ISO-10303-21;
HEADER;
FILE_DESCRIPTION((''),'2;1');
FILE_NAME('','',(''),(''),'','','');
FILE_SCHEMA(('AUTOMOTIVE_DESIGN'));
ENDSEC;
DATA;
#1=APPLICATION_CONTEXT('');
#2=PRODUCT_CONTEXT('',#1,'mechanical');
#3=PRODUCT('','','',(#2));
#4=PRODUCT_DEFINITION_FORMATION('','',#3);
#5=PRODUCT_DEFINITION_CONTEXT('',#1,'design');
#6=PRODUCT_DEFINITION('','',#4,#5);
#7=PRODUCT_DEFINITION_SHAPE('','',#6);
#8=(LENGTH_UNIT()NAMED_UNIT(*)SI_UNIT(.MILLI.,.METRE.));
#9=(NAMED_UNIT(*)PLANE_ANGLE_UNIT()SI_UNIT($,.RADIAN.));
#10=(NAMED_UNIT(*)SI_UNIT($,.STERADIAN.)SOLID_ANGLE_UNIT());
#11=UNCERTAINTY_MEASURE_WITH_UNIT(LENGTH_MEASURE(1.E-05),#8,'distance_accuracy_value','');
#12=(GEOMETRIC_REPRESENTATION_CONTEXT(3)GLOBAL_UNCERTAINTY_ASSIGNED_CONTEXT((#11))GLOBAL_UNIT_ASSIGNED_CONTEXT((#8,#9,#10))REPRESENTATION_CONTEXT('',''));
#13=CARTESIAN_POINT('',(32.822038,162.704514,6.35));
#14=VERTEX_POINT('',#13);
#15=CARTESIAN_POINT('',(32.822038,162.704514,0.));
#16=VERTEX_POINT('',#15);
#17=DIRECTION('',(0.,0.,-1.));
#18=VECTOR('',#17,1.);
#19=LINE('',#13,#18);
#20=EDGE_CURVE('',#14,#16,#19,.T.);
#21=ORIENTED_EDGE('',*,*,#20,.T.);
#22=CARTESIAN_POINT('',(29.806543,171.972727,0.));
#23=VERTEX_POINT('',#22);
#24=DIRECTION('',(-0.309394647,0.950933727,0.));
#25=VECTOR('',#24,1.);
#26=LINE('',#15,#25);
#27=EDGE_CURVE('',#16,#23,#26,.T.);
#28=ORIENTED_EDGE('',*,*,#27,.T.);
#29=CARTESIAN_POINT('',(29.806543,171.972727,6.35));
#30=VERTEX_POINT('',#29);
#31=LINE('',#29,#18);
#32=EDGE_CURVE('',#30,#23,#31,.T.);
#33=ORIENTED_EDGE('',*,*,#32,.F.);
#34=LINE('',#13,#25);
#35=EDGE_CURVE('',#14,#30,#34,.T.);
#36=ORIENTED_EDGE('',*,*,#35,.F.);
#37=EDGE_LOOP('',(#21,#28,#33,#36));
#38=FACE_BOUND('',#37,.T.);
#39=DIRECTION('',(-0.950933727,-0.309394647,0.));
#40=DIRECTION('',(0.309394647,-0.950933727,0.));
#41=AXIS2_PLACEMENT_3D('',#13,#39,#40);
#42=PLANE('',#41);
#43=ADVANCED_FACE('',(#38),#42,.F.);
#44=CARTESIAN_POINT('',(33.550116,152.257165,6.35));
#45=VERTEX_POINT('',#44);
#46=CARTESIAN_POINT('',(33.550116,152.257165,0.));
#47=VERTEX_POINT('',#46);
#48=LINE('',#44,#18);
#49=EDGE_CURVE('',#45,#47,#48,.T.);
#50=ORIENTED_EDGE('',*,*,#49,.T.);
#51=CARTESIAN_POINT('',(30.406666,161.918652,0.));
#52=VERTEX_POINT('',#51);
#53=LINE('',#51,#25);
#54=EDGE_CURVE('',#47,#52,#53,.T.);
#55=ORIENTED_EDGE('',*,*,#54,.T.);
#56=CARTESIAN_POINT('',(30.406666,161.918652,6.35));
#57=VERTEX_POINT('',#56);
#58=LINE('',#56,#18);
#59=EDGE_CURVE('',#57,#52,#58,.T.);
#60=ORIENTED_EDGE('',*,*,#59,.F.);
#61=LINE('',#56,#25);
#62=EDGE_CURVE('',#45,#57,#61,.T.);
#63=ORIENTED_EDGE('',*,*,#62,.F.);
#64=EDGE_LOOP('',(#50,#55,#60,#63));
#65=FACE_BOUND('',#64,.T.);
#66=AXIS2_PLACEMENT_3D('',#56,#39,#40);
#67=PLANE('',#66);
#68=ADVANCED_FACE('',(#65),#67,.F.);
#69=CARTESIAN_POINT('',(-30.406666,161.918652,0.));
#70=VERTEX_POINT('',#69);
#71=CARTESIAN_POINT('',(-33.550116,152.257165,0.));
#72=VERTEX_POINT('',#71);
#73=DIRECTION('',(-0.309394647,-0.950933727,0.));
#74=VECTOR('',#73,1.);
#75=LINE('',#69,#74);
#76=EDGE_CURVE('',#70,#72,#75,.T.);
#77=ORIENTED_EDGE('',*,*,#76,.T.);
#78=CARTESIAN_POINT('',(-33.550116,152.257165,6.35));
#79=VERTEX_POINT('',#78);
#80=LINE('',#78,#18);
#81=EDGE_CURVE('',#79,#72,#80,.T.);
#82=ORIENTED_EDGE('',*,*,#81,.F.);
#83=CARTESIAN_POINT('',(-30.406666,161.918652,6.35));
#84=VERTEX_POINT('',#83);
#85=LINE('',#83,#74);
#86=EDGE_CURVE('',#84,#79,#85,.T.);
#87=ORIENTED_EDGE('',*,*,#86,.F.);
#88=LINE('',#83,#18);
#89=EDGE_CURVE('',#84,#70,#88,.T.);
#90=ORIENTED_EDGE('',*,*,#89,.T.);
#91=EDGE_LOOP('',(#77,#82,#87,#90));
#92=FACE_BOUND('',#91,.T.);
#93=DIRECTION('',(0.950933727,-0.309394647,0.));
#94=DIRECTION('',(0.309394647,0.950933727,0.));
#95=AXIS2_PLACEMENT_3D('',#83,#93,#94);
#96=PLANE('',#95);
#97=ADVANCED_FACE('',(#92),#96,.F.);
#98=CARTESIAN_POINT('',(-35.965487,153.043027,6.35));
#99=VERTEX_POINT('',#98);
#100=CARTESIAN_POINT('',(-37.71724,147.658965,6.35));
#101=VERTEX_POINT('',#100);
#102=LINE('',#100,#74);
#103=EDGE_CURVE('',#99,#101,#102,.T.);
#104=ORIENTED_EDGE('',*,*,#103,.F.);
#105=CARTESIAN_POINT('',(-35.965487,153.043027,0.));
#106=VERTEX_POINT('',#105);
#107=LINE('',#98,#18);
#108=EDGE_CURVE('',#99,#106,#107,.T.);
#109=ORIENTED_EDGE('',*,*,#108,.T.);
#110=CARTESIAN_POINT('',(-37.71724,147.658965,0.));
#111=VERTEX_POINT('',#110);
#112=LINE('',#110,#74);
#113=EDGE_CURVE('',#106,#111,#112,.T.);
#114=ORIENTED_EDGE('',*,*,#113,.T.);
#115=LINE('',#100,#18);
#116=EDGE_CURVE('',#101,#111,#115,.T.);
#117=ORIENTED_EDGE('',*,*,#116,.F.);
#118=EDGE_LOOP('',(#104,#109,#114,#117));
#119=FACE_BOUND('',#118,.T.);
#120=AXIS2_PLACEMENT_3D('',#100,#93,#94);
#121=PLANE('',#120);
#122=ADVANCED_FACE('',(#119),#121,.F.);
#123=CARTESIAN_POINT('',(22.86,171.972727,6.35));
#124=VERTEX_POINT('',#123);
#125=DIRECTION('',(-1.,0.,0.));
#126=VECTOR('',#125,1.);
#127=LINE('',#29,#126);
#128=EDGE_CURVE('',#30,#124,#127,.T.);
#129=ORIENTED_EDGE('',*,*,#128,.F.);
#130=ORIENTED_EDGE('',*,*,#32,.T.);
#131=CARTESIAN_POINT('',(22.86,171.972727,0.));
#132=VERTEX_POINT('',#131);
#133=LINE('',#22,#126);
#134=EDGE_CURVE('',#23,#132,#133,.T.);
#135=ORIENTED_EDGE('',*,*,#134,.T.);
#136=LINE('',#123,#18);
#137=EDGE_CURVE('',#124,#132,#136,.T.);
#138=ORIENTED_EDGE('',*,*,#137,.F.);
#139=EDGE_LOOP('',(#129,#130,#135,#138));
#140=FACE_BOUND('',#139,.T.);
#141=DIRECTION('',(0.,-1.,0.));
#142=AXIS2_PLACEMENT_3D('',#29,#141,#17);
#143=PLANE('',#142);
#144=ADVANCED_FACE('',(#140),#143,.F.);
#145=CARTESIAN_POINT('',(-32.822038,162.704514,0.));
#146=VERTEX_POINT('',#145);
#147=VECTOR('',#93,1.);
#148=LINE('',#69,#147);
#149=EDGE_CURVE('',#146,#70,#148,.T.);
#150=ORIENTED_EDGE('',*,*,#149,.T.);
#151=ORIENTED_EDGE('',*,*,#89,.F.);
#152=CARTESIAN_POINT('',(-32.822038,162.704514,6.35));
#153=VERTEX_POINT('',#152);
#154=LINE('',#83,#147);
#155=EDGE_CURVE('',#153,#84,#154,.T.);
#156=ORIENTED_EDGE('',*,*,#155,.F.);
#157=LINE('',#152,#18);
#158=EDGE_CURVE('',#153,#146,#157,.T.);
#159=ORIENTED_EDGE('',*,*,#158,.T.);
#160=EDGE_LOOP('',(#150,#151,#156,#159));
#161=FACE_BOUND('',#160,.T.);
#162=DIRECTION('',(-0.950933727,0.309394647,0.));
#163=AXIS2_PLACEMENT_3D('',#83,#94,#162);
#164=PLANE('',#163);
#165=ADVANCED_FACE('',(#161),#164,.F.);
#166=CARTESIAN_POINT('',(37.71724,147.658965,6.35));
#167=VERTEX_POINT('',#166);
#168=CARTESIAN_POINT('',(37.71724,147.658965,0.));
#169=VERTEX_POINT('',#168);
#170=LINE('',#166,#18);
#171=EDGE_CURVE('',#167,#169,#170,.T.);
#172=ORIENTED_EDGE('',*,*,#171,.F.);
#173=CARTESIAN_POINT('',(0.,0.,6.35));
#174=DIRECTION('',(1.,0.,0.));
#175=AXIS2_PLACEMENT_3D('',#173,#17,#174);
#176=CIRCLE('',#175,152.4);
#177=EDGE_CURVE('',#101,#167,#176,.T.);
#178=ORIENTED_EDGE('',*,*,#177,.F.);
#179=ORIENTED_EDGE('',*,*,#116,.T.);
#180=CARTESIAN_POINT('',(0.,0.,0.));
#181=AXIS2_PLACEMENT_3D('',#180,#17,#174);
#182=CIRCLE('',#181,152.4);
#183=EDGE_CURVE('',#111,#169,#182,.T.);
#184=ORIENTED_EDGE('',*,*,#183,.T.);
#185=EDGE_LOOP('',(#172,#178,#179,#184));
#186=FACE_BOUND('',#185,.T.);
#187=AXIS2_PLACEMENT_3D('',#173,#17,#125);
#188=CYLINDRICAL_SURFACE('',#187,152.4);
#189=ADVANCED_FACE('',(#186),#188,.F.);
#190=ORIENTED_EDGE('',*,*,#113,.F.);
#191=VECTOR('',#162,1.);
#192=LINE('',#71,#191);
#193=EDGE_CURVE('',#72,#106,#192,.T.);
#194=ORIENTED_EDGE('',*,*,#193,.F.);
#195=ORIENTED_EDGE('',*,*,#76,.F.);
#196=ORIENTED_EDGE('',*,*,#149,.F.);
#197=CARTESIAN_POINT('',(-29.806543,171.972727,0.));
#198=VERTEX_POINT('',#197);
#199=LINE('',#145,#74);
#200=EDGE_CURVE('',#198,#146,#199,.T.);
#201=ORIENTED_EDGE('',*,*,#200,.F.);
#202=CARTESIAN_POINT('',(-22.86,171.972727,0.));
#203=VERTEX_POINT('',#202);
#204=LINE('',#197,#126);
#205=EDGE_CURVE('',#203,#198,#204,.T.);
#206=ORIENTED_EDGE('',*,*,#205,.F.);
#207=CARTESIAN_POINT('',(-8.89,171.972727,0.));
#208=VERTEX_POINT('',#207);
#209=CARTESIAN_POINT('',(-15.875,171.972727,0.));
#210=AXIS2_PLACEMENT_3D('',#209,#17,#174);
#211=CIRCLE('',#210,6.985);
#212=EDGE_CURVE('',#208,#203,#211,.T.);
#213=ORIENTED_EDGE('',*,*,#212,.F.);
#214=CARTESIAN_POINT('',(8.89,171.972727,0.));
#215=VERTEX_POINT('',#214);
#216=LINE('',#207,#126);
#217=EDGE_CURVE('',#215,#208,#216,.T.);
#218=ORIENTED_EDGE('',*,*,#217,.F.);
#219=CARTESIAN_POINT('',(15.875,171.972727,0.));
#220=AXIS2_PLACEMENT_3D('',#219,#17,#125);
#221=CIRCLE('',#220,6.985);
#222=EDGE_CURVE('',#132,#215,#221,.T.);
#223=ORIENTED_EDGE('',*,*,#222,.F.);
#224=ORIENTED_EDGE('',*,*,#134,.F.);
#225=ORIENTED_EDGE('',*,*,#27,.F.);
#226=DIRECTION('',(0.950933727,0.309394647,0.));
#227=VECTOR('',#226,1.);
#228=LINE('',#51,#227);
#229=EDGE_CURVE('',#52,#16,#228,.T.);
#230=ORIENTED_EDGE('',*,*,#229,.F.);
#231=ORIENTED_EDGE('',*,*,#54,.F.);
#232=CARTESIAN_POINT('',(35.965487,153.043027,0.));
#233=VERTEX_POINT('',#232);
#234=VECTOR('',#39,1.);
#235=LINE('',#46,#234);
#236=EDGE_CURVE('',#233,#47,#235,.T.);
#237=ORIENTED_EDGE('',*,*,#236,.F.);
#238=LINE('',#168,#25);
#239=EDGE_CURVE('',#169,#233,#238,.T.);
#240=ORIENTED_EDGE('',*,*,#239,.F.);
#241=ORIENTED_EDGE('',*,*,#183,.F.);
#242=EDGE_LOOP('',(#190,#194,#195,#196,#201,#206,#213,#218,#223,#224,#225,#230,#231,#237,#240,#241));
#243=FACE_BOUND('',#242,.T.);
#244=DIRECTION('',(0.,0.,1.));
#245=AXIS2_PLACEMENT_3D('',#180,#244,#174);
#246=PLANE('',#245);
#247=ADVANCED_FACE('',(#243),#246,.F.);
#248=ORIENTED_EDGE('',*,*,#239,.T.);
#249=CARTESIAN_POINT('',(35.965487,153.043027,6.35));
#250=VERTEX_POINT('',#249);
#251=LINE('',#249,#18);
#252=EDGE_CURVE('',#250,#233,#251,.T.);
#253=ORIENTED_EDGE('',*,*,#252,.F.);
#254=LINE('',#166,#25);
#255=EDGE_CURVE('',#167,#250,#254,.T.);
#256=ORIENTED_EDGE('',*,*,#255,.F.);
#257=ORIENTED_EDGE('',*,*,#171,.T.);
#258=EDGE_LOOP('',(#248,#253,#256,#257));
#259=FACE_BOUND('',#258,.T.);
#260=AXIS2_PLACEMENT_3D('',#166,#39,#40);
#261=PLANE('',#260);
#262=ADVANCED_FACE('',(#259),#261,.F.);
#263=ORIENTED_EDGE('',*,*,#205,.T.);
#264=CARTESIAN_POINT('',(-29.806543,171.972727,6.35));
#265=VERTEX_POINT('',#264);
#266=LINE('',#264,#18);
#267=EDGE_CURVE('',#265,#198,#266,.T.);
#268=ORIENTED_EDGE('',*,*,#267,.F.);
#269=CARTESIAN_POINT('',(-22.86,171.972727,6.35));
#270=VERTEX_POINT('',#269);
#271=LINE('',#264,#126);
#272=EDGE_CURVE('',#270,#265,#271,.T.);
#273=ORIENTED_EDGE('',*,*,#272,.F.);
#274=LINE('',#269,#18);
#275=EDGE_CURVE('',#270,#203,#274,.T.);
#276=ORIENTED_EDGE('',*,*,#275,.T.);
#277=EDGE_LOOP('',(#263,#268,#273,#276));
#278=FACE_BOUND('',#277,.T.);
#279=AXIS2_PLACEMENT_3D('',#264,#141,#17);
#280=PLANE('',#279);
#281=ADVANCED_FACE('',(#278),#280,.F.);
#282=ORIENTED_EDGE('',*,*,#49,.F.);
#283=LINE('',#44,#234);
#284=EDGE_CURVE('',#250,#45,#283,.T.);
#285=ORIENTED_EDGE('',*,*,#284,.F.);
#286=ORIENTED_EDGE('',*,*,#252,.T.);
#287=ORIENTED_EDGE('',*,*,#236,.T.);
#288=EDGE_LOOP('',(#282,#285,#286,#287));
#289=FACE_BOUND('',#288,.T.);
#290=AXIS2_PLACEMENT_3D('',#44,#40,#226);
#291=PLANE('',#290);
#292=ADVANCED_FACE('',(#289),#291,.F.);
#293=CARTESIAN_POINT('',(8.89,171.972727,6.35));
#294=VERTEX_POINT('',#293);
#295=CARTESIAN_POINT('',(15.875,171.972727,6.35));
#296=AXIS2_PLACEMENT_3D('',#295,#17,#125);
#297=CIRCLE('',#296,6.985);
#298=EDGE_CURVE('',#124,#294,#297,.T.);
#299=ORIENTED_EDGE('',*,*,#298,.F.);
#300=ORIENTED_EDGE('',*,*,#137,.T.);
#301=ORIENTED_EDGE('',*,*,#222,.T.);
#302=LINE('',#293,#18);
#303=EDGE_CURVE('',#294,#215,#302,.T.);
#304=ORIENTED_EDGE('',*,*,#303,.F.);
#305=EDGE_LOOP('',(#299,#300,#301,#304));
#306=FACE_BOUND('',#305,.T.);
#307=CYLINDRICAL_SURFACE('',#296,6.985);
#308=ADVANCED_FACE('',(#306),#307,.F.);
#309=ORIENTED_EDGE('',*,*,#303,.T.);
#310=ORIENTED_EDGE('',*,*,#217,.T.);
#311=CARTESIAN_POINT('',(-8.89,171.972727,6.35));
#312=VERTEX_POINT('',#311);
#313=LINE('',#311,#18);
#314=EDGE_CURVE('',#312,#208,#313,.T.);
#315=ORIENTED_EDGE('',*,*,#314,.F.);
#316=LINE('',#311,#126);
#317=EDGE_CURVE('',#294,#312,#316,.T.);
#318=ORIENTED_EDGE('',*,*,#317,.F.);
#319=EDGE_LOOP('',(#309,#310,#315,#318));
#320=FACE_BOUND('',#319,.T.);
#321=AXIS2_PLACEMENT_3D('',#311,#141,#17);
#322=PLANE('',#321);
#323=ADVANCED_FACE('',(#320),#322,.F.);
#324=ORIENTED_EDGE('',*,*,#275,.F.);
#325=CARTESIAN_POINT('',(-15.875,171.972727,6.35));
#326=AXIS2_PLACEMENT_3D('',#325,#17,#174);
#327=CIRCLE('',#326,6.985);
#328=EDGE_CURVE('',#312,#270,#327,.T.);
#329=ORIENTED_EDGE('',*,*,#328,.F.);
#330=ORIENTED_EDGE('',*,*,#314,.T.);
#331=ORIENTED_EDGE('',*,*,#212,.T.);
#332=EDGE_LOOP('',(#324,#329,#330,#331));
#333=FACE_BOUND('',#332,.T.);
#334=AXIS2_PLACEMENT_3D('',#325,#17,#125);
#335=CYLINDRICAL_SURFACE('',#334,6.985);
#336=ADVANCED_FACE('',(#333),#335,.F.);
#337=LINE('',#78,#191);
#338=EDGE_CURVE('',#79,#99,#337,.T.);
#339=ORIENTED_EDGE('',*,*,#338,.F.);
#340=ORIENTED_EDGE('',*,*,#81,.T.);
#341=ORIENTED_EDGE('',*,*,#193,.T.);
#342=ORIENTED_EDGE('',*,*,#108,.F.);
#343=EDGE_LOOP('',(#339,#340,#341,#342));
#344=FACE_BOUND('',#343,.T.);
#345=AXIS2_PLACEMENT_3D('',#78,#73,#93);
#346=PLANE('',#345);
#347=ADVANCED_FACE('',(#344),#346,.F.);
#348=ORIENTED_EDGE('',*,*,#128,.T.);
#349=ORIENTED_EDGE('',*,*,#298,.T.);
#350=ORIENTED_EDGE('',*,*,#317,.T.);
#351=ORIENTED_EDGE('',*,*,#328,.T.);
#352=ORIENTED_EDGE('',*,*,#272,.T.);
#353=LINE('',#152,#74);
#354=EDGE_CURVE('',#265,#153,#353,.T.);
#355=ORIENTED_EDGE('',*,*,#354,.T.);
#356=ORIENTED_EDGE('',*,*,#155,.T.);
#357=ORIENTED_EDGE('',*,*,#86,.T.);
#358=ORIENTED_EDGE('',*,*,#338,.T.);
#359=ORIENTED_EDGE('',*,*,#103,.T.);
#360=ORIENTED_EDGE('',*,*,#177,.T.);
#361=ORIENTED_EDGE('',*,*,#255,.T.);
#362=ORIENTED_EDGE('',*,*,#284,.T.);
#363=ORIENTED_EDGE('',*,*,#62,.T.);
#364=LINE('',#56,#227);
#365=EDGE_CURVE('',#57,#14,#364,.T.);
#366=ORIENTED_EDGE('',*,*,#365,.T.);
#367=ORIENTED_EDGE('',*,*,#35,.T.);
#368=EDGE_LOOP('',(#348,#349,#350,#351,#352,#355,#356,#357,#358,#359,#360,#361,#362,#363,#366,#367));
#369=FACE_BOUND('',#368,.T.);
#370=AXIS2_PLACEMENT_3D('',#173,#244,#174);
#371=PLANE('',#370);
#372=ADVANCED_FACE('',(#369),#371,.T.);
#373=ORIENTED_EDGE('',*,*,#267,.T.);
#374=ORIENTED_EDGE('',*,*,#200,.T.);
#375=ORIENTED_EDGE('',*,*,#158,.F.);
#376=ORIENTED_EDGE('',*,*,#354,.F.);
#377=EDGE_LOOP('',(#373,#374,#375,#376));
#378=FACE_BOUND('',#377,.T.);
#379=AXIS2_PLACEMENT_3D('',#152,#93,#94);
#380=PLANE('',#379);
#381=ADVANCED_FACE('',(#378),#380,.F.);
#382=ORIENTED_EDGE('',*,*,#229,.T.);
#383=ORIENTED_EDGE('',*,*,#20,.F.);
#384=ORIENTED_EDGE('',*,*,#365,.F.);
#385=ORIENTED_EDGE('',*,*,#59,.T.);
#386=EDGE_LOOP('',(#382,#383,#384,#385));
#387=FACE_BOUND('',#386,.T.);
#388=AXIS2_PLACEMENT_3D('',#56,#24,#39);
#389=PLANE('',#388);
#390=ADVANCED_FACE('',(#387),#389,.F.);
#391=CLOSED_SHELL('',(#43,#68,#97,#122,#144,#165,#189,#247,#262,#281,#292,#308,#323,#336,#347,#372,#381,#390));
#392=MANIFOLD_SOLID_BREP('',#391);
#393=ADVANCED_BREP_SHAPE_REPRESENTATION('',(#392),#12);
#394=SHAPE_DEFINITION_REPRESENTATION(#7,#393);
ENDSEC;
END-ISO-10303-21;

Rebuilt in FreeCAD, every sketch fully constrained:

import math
import FreeCAD as App
import Part
import Sketcher
Q = App.Units.Quantity

doc = App.newDocument("Part")
body = doc.addObject("PartDesign::Body", "Body")

# Sketch on XY plane
sketch1 = body.newObject("Sketcher::SketchObject", "Sketch")
sketch1.AttachmentSupport = (doc.getObject("XY_Plane"), [""])
sketch1.MapMode = "FlatFace"
sketch1.addGeometry([
    Part.LineSegment(App.Vector(37.71724, 147.658965, 0), App.Vector(35.965487, 153.043027, 0)),  # 0
    Part.LineSegment(App.Vector(35.965487, 153.043027, 0), App.Vector(33.550116, 152.257165, 0)),  # 1
    Part.LineSegment(App.Vector(33.550116, 152.257165, 0), App.Vector(30.406666, 161.918652, 0)),  # 2
    Part.LineSegment(App.Vector(30.406666, 161.918652, 0), App.Vector(32.822038, 162.704514, 0)),  # 3
    Part.LineSegment(App.Vector(32.822038, 162.704514, 0), App.Vector(29.806543, 171.972727, 0)),  # 4
    Part.LineSegment(App.Vector(29.806543, 171.972727, 0), App.Vector(22.86, 171.972727, 0)),  # 5
    Part.ArcOfCircle(Part.Circle(App.Vector(15.875, 171.972727, 0), App.Vector(0, 0, 1), 6.985), math.radians(180), math.radians(360)),  # 6
    Part.LineSegment(App.Vector(8.89, 171.972727, 0), App.Vector(-8.89, 171.972727, 0)),  # 7
    Part.ArcOfCircle(Part.Circle(App.Vector(-15.875, 171.972727, 0), App.Vector(0, 0, 1), 6.985), math.radians(180), math.radians(360)),  # 8
    Part.LineSegment(App.Vector(-22.86, 171.972727, 0), App.Vector(-29.806543, 171.972727, 0)),  # 9
    Part.LineSegment(App.Vector(-29.806543, 171.972727, 0), App.Vector(-32.822038, 162.704514, 0)),  # 10
    Part.LineSegment(App.Vector(-32.822038, 162.704514, 0), App.Vector(-30.406666, 161.918652, 0)),  # 11
    Part.LineSegment(App.Vector(-30.406666, 161.918652, 0), App.Vector(-33.550116, 152.257165, 0)),  # 12
    Part.LineSegment(App.Vector(-33.550116, 152.257165, 0), App.Vector(-35.965487, 153.043027, 0)),  # 13
    Part.LineSegment(App.Vector(-35.965487, 153.043027, 0), App.Vector(-37.71724, 147.658965, 0)),  # 14
    Part.ArcOfCircle(Part.Circle(App.Vector(0, 0, 0), App.Vector(0, 0, 1), 152.4), math.radians(75.671059), math.radians(104.328941)),  # 15
], False)
sketch1.addConstraint([
    Sketcher.Constraint("Coincident", 0, 2, 1, 1),
    Sketcher.Constraint("Coincident", 1, 2, 2, 1),
    Sketcher.Constraint("Coincident", 2, 2, 3, 1),
    Sketcher.Constraint("Coincident", 3, 2, 4, 1),
    Sketcher.Constraint("Coincident", 4, 2, 5, 1),
    Sketcher.Constraint("Coincident", 5, 2, 6, 2),
    Sketcher.Constraint("Coincident", 6, 1, 7, 1),
    Sketcher.Constraint("Coincident", 7, 2, 8, 2),
    Sketcher.Constraint("Coincident", 8, 1, 9, 1),
    Sketcher.Constraint("Coincident", 9, 2, 10, 1),
    Sketcher.Constraint("Coincident", 10, 2, 11, 1),
    Sketcher.Constraint("Coincident", 11, 2, 12, 1),
    Sketcher.Constraint("Coincident", 12, 2, 13, 1),
    Sketcher.Constraint("Coincident", 13, 2, 14, 1),
    Sketcher.Constraint("Coincident", 14, 2, 15, 2),
    Sketcher.Constraint("Coincident", 15, 1, 0, 1),
    Sketcher.Constraint("Horizontal", 5),
    Sketcher.Constraint("Horizontal", 7),
    Sketcher.Constraint("Horizontal", 9),
    Sketcher.Constraint("Coincident", 15, 3, -1, 1),
    Sketcher.Constraint("Equal", 6, 8),
    Sketcher.Constraint("Symmetric", 6, 3, 8, 3, -2),
    Sketcher.Constraint("Symmetric", 4, 2, 9, 2, -2),
    Sketcher.Constraint("Symmetric", 3, 2, 10, 2, -2),
    Sketcher.Constraint("Symmetric", 2, 2, 11, 2, -2),
    Sketcher.Constraint("Symmetric", 1, 2, 12, 2, -2),
    Sketcher.Constraint("Symmetric", 0, 2, 13, 2, -2),
    Sketcher.Constraint("Perpendicular", 0, 1),
    Sketcher.Constraint("Perpendicular", 1, 2),
    Sketcher.Constraint("Perpendicular", 2, 3),
    Sketcher.Constraint("Perpendicular", 3, 4),
    Sketcher.Constraint("Perpendicular", 13, 14),
    Sketcher.Constraint("Horizontal", 8, 3, 4, 2),
    Sketcher.Constraint("Horizontal", 5, 2, 6, 1),
    Sketcher.Constraint("Equal", 1, 3),
    Sketcher.Constraint("Radius", 15, Q("6 in")),
    Sketcher.Constraint("DistanceX", 7, 2, 7, 1, Q("0.7 in")),
    Sketcher.Constraint("Radius", 6, Q("0.275 in")),
    Sketcher.Constraint("Distance", 1, Q("0.1 in")),
    Sketcher.Constraint("Distance", 2, Q("0.4 in")),
    Sketcher.Constraint("DistanceY", 0, 2, 6, 3, 18.929699),
    Sketcher.Constraint("DistanceY", 14, 2, 12, 2, 4.5982),
    Sketcher.Constraint("DistanceX", 14, 2, 10, 2, 4.895202),
    Sketcher.Constraint("DistanceX", 5, 2, 5, 1, 6.946543),
])
pad1 = body.newObject("PartDesign::Pad", "Pad")
pad1.Profile = sketch1
pad1.Length = Q("0.25 in")

doc.recompute()
